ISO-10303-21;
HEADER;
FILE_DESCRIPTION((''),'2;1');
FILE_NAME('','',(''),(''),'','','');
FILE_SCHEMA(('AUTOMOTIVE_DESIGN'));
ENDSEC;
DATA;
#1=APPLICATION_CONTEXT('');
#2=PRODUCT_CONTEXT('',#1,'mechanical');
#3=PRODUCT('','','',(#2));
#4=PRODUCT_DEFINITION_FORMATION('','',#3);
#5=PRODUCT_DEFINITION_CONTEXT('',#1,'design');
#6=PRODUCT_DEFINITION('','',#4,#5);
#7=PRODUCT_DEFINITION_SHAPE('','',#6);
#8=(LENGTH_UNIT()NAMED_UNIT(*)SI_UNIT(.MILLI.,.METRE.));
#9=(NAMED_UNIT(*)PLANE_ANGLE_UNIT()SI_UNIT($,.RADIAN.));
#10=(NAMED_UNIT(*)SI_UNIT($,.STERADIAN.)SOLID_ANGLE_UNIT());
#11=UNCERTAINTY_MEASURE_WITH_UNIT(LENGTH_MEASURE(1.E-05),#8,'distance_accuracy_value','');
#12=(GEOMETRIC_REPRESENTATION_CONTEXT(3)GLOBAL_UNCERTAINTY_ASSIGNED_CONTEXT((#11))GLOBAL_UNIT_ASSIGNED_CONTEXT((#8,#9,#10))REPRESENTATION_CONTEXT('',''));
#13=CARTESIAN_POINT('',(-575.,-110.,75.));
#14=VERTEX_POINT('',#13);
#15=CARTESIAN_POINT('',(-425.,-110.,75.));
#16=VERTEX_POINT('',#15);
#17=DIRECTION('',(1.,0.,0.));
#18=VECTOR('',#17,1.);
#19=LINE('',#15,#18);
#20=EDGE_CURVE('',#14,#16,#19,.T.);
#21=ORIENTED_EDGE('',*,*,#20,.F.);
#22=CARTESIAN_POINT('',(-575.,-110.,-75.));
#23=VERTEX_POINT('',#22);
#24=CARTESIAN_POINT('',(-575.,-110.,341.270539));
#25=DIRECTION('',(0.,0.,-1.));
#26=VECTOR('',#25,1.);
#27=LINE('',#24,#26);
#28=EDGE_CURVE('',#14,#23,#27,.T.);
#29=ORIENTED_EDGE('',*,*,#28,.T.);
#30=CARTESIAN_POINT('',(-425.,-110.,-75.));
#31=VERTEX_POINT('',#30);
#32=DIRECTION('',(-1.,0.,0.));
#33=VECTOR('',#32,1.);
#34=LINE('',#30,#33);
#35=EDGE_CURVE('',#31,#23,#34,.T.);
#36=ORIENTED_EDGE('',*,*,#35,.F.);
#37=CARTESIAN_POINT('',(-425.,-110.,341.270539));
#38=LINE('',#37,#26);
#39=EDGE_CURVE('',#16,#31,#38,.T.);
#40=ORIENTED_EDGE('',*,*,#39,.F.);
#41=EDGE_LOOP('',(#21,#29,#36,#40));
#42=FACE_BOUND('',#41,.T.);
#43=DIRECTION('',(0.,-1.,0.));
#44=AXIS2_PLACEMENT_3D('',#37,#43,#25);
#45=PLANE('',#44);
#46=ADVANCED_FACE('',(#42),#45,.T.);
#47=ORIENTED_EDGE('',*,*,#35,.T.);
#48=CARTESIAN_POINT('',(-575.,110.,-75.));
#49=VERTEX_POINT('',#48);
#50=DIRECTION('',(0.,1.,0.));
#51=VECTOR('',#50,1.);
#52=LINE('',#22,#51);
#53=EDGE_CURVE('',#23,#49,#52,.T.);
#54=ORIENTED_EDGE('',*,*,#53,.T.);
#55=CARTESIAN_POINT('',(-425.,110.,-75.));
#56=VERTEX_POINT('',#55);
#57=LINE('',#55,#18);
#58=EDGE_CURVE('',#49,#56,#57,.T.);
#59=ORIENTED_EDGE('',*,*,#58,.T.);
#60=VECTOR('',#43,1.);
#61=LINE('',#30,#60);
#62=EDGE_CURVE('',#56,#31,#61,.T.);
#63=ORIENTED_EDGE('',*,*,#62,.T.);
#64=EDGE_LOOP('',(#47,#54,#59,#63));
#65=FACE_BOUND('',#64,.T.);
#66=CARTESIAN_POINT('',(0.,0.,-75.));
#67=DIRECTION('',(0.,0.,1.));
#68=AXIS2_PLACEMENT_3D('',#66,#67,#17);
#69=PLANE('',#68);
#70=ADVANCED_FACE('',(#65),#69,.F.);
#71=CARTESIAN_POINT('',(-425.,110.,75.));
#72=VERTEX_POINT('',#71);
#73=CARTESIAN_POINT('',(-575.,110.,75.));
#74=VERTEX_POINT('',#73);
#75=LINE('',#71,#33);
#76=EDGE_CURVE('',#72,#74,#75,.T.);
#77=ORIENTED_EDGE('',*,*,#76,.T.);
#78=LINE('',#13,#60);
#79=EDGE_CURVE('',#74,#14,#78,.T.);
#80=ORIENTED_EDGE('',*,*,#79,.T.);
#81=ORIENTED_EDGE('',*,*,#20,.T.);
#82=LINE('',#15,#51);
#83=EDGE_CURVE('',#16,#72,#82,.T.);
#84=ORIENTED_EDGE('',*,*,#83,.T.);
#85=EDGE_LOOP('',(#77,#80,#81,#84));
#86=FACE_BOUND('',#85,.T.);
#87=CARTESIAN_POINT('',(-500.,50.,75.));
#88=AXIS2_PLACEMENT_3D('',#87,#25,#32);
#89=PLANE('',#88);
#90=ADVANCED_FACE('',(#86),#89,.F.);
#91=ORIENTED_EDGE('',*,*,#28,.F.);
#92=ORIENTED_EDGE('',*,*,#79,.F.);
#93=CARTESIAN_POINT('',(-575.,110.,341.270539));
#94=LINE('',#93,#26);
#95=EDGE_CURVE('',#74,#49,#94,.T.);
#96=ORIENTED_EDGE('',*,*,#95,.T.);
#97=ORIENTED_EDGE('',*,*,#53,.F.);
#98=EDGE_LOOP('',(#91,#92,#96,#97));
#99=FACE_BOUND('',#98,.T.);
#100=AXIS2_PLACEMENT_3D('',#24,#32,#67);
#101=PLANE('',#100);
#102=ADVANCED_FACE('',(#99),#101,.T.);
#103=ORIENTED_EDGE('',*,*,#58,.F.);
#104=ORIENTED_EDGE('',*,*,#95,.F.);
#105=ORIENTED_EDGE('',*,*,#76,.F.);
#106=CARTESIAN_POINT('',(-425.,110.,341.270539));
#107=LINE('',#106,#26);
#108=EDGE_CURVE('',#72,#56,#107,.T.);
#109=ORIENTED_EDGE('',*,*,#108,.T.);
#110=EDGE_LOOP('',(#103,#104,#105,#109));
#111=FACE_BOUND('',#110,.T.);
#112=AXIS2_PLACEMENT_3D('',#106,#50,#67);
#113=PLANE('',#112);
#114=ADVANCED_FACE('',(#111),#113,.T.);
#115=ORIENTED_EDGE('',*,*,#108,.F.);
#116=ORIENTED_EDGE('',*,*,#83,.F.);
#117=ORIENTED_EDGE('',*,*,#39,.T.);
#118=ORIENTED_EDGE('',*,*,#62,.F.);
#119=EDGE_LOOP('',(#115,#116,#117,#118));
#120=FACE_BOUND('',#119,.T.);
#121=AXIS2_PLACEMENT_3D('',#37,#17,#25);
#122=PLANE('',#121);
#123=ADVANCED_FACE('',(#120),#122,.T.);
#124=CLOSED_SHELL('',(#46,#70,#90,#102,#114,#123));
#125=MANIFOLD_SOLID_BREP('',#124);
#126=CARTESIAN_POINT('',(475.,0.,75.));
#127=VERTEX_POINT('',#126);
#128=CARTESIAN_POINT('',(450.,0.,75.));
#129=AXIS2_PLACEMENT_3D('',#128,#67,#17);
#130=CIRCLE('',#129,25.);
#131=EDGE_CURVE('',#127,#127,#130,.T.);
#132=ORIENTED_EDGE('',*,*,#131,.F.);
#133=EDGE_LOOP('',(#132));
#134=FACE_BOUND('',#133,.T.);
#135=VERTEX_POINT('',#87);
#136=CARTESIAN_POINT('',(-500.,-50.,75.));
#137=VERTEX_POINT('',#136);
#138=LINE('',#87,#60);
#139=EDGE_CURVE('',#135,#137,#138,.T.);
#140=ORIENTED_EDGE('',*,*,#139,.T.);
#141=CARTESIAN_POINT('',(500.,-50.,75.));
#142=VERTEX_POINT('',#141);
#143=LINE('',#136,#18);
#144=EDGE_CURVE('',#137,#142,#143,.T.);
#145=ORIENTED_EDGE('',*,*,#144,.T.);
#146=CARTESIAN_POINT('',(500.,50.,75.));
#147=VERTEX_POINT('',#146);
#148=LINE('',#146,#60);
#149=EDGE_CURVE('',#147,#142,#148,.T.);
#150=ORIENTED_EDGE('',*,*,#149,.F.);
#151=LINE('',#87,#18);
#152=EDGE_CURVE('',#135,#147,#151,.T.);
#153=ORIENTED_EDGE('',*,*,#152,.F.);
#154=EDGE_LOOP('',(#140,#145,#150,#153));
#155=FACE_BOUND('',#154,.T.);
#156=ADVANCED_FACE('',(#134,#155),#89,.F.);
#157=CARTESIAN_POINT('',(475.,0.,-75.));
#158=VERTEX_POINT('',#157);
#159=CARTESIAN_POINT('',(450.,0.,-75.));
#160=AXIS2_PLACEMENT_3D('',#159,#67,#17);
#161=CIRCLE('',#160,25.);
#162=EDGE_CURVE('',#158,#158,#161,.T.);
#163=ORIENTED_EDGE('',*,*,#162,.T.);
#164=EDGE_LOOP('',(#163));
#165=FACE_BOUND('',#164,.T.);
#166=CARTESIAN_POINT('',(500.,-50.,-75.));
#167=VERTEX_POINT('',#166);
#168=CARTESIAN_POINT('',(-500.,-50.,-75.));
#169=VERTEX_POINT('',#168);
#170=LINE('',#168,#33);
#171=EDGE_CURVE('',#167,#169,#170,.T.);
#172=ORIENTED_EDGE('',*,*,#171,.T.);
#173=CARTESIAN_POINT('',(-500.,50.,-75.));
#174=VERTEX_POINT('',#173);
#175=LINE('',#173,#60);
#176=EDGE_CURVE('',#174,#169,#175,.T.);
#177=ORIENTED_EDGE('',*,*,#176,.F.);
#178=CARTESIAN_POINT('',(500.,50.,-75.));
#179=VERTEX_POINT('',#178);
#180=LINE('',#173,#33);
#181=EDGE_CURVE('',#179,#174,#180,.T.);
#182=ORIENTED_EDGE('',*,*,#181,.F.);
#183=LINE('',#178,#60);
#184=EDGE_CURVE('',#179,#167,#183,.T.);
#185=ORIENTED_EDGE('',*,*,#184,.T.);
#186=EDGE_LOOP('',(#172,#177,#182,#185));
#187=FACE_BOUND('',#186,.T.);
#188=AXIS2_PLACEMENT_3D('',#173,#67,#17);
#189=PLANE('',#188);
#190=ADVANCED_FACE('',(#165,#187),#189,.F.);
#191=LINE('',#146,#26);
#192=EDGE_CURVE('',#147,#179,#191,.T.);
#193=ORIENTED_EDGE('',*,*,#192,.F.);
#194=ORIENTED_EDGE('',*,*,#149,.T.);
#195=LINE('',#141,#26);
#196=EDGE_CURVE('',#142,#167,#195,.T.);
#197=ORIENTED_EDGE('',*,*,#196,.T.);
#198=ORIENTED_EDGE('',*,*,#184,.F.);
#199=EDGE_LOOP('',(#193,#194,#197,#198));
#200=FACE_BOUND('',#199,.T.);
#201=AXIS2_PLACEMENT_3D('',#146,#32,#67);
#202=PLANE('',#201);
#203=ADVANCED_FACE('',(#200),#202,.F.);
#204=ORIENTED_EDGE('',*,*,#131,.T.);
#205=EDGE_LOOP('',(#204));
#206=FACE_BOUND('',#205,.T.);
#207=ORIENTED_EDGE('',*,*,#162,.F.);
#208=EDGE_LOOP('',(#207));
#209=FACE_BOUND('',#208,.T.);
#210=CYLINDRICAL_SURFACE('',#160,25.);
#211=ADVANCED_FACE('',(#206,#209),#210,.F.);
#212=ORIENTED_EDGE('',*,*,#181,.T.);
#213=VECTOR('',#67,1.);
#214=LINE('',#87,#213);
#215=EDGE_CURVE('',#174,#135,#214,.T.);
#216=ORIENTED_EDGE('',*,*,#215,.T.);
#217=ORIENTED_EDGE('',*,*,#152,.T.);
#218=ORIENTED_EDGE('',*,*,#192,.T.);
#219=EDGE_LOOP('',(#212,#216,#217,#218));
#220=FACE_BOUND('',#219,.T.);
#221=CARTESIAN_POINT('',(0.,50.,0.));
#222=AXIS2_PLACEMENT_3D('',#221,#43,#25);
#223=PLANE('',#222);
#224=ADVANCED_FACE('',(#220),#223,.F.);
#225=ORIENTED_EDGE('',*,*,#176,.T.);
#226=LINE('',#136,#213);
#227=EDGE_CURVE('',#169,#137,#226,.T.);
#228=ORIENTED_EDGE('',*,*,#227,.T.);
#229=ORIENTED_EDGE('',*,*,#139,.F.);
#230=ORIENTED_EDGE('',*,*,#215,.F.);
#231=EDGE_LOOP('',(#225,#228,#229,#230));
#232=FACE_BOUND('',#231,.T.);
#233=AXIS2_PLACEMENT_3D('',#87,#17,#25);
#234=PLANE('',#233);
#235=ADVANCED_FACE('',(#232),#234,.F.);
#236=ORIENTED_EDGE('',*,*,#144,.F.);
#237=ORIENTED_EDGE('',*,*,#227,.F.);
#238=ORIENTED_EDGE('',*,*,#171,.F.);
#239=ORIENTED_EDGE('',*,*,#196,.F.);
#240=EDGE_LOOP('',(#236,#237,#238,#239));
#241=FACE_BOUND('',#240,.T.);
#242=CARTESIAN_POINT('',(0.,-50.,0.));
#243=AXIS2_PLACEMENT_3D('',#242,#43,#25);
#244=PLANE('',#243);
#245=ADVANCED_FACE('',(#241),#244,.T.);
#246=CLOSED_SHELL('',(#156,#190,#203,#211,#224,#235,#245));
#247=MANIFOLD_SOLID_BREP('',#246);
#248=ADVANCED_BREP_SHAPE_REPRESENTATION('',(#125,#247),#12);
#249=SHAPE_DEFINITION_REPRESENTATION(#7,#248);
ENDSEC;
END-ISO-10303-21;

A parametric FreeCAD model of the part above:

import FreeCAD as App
import Part
import Sketcher
from FreeCAD import Vector


def add_polygon(sketch, points):
    """Adds a closed chain of lines whose ends are joined by coincident constraints."""
    first, n = sketch.GeometryCount, len(points)
    for a, b in zip(points, points[1:] + points[:1]):
        sketch.addGeometry(Part.LineSegment(App.Vector(*a, 0), App.Vector(*b, 0)), False)
    for i in range(n):
        sketch.addConstraint(Sketcher.Constraint("Coincident", first + i, 2, first + (i + 1) % n, 1))

doc = App.newDocument("Part")
body = doc.addObject("PartDesign::Body", "Body")

# Sketch on XZ plane
sketch1 = body.newObject("Sketcher::SketchObject", "Sketch")
sketch1.AttachmentSupport = (doc.getObject("XZ_Plane"), [""])
sketch1.MapMode = "FlatFace"
add_polygon(sketch1, [(-500, -75), (-500, 75), (500, 75), (500, -75)])  # lines 0-3
sketch1.addConstraint(Sketcher.Constraint("Vertical", 0))
sketch1.addConstraint(Sketcher.Constraint("Horizontal", 1))
sketch1.addConstraint(Sketcher.Constraint("Vertical", 2))
sketch1.addConstraint(Sketcher.Constraint("Horizontal", 3))
sketch1.addConstraint(Sketcher.Constraint("Symmetric", 0, 2, 2, 2, -1, 1))
sketch1.addConstraint(Sketcher.Constraint("DistanceX", 1, 1, 1, 2, 1000.0))
sketch1.addConstraint(Sketcher.Constraint("DistanceY", 0, 1, 0, 2, 150.0))
pad1 = body.newObject("PartDesign::Pad", "Pad")
pad1.Profile = sketch1
pad1.Length = 100
pad1.Midplane = True

# Sketch on XY plane
sketch2 = body.newObject("Sketcher::SketchObject", "Sketch001")
sketch2.AttachmentSupport = (doc.getObject("XY_Plane"), [""])
sketch2.MapMode = "FlatFace"
sketch2.AttachmentOffset = App.Placement(Vector(0, 0, 75), App.Rotation())
sketch2.addGeometry(Part.Circle(Vector(450, 0, 0), Vector(0, 0, 1), 25), False)
sketch2.addConstraint(Sketcher.Constraint("PointOnObject", 0, 3, -1))
sketch2.addConstraint(Sketcher.Constraint("Diameter", 0, 50.0))
sketch2.addConstraint(Sketcher.Constraint("DistanceX", -1, 1, 0, 3, 450.0))
pocket1 = body.newObject("PartDesign::Pocket", "Pocket")
pocket1.Profile = sketch2
pocket1.Type = "ThroughAll"
body2 = doc.addObject("PartDesign::Body", "Body001")

# Sketch on XY plane
sketch3 = body2.newObject("Sketcher::SketchObject", "Sketch002")
sketch3.AttachmentSupport = (doc.getObject("XY_Plane001"), [""])
sketch3.MapMode = "FlatFace"
sketch3.AttachmentOffset = App.Placement(Vector(0, 0, -75), App.Rotation())
add_polygon(sketch3, [(-425, 110), (-425, -110), (-575, -110), (-575, 110)])  # lines 0-3
sketch3.addConstraint(Sketcher.Constraint("Vertical", 0))
sketch3.addConstraint(Sketcher.Constraint("Horizontal", 1))
sketch3.addConstraint(Sketcher.Constraint("Vertical", 2))
sketch3.addConstraint(Sketcher.Constraint("Horizontal", 3))
sketch3.addConstraint(Sketcher.Constraint("DistanceX", 1, 2, 1, 1, 150.0))
sketch3.addConstraint(Sketcher.Constraint("DistanceY", 0, 2, 0, 1, 220.0))
sketch3.addConstraint(Sketcher.Constraint("DistanceX", 0, 2, -1, 1, 425.0))
sketch3.addConstraint(Sketcher.Constraint("DistanceY", 0, 2, -1, 1, 110.0))
pad2 = body2.newObject("PartDesign::Pad", "Pad001")
pad2.Profile = sketch3
pad2.Length = 150

doc.recompute()
